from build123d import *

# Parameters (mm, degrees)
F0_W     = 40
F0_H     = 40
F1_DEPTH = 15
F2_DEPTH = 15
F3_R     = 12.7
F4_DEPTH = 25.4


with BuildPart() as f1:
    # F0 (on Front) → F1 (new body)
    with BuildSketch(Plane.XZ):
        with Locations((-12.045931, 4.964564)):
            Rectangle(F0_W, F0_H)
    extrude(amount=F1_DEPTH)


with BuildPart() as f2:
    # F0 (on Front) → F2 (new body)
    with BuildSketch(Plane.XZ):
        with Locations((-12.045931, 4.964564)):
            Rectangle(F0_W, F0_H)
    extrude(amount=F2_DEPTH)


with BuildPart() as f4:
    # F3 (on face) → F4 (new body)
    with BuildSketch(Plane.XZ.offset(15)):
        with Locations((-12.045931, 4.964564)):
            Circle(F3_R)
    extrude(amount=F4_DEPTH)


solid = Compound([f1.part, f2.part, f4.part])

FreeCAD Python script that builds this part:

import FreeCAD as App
import Part
import Sketcher
from FreeCAD import Vector


def add_polygon(sketch, points):
    """Adds a closed chain of lines whose ends are joined by coincident constraints."""
    first, n = sketch.GeometryCount, len(points)
    for a, b in zip(points, points[1:] + points[:1]):
        sketch.addGeometry(Part.LineSegment(App.Vector(*a, 0), App.Vector(*b, 0)), False)
    for i in range(n):
        sketch.addConstraint(Sketcher.Constraint("Coincident", first + i, 2, first + (i + 1) % n, 1))

doc = App.newDocument("Part")
body = doc.addObject("PartDesign::Body", "Body")

# Sketch on XZ plane
sketch1 = body.newObject("Sketcher::SketchObject", "Sketch")
sketch1.AttachmentSupport = (doc.getObject("XZ_Plane"), [""])
sketch1.MapMode = "FlatFace"
add_polygon(sketch1, [(-32.045931, 24.964564), (-32.045931, -15.035436), (7.954069, -15.035436), (7.954069, 24.964564)])  # lines 0-3
sketch1.addConstraint(Sketcher.Constraint("Vertical", 0))
sketch1.addConstraint(Sketcher.Constraint("Horizontal", 1))
sketch1.addConstraint(Sketcher.Constraint("Vertical", 2))
sketch1.addConstraint(Sketcher.Constraint("Horizontal", 3))
sketch1.addConstraint(Sketcher.Constraint("Equal", 3, 0))
sketch1.addConstraint(Sketcher.Constraint("DistanceX", 1, 1, 1, 2, 40.0))
sketch1.addConstraint(Sketcher.Constraint("DistanceX", 0, 2, -1, 1, 32.045931))
sketch1.addConstraint(Sketcher.Constraint("DistanceY", 0, 2, -1, 1, 15.035436))
pad1 = body.newObject("PartDesign::Pad", "Pad")
pad1.Profile = sketch1
pad1.Length = 15
body2 = doc.addObject("PartDesign::Body", "Body001")

# Sketch on XZ plane
sketch2 = body2.newObject("Sketcher::SketchObject", "Sketch001")
sketch2.AttachmentSupport = (doc.getObject("XZ_Plane001"), [""])
sketch2.MapMode = "FlatFace"
add_polygon(sketch2, [(-32.045931, 24.964564), (-32.045931, -15.035436), (7.954069, -15.035436), (7.954069, 24.964564)])  # lines 0-3
sketch2.addConstraint(Sketcher.Constraint("Vertical", 0))
sketch2.addConstraint(Sketcher.Constraint("Horizontal", 1))
sketch2.addConstraint(Sketcher.Constraint("Vertical", 2))
sketch2.addConstraint(Sketcher.Constraint("Horizontal", 3))
sketch2.addConstraint(Sketcher.Constraint("Equal", 3, 0))
sketch2.addConstraint(Sketcher.Constraint("DistanceX", 1, 1, 1, 2, 40.0))
sketch2.addConstraint(Sketcher.Constraint("DistanceX", 0, 2, -1, 1, 32.045931))
sketch2.addConstraint(Sketcher.Constraint("DistanceY", 0, 2, -1, 1, 15.035436))
pad2 = body2.newObject("PartDesign::Pad", "Pad001")
pad2.Profile = sketch2
pad2.Length = 15
body3 = doc.addObject("PartDesign::Body", "Body002")

# Sketch on XZ plane
sketch3 = body3.newObject("Sketcher::SketchObject", "Sketch002")
sketch3.AttachmentSupport = (doc.getObject("XZ_Plane002"), [""])
sketch3.MapMode = "FlatFace"
sketch3.AttachmentOffset = App.Placement(Vector(0, 0, 15), App.Rotation())
sketch3.addGeometry(Part.Circle(Vector(-12.045931, 4.964564, 0), Vector(0, 0, 1), 12.7), False)
sketch3.addConstraint(Sketcher.Constraint("Diameter", 0, 25.4))
sketch3.addConstraint(Sketcher.Constraint("DistanceX", 0, 3, -1, 1, 12.045931))
sketch3.addConstraint(Sketcher.Constraint("DistanceY", -1, 1, 0, 3, 4.964564))
pad3 = body3.newObject("PartDesign::Pad", "Pad002")
pad3.Profile = sketch3
pad3.Length = 25.4

doc.recompute()
